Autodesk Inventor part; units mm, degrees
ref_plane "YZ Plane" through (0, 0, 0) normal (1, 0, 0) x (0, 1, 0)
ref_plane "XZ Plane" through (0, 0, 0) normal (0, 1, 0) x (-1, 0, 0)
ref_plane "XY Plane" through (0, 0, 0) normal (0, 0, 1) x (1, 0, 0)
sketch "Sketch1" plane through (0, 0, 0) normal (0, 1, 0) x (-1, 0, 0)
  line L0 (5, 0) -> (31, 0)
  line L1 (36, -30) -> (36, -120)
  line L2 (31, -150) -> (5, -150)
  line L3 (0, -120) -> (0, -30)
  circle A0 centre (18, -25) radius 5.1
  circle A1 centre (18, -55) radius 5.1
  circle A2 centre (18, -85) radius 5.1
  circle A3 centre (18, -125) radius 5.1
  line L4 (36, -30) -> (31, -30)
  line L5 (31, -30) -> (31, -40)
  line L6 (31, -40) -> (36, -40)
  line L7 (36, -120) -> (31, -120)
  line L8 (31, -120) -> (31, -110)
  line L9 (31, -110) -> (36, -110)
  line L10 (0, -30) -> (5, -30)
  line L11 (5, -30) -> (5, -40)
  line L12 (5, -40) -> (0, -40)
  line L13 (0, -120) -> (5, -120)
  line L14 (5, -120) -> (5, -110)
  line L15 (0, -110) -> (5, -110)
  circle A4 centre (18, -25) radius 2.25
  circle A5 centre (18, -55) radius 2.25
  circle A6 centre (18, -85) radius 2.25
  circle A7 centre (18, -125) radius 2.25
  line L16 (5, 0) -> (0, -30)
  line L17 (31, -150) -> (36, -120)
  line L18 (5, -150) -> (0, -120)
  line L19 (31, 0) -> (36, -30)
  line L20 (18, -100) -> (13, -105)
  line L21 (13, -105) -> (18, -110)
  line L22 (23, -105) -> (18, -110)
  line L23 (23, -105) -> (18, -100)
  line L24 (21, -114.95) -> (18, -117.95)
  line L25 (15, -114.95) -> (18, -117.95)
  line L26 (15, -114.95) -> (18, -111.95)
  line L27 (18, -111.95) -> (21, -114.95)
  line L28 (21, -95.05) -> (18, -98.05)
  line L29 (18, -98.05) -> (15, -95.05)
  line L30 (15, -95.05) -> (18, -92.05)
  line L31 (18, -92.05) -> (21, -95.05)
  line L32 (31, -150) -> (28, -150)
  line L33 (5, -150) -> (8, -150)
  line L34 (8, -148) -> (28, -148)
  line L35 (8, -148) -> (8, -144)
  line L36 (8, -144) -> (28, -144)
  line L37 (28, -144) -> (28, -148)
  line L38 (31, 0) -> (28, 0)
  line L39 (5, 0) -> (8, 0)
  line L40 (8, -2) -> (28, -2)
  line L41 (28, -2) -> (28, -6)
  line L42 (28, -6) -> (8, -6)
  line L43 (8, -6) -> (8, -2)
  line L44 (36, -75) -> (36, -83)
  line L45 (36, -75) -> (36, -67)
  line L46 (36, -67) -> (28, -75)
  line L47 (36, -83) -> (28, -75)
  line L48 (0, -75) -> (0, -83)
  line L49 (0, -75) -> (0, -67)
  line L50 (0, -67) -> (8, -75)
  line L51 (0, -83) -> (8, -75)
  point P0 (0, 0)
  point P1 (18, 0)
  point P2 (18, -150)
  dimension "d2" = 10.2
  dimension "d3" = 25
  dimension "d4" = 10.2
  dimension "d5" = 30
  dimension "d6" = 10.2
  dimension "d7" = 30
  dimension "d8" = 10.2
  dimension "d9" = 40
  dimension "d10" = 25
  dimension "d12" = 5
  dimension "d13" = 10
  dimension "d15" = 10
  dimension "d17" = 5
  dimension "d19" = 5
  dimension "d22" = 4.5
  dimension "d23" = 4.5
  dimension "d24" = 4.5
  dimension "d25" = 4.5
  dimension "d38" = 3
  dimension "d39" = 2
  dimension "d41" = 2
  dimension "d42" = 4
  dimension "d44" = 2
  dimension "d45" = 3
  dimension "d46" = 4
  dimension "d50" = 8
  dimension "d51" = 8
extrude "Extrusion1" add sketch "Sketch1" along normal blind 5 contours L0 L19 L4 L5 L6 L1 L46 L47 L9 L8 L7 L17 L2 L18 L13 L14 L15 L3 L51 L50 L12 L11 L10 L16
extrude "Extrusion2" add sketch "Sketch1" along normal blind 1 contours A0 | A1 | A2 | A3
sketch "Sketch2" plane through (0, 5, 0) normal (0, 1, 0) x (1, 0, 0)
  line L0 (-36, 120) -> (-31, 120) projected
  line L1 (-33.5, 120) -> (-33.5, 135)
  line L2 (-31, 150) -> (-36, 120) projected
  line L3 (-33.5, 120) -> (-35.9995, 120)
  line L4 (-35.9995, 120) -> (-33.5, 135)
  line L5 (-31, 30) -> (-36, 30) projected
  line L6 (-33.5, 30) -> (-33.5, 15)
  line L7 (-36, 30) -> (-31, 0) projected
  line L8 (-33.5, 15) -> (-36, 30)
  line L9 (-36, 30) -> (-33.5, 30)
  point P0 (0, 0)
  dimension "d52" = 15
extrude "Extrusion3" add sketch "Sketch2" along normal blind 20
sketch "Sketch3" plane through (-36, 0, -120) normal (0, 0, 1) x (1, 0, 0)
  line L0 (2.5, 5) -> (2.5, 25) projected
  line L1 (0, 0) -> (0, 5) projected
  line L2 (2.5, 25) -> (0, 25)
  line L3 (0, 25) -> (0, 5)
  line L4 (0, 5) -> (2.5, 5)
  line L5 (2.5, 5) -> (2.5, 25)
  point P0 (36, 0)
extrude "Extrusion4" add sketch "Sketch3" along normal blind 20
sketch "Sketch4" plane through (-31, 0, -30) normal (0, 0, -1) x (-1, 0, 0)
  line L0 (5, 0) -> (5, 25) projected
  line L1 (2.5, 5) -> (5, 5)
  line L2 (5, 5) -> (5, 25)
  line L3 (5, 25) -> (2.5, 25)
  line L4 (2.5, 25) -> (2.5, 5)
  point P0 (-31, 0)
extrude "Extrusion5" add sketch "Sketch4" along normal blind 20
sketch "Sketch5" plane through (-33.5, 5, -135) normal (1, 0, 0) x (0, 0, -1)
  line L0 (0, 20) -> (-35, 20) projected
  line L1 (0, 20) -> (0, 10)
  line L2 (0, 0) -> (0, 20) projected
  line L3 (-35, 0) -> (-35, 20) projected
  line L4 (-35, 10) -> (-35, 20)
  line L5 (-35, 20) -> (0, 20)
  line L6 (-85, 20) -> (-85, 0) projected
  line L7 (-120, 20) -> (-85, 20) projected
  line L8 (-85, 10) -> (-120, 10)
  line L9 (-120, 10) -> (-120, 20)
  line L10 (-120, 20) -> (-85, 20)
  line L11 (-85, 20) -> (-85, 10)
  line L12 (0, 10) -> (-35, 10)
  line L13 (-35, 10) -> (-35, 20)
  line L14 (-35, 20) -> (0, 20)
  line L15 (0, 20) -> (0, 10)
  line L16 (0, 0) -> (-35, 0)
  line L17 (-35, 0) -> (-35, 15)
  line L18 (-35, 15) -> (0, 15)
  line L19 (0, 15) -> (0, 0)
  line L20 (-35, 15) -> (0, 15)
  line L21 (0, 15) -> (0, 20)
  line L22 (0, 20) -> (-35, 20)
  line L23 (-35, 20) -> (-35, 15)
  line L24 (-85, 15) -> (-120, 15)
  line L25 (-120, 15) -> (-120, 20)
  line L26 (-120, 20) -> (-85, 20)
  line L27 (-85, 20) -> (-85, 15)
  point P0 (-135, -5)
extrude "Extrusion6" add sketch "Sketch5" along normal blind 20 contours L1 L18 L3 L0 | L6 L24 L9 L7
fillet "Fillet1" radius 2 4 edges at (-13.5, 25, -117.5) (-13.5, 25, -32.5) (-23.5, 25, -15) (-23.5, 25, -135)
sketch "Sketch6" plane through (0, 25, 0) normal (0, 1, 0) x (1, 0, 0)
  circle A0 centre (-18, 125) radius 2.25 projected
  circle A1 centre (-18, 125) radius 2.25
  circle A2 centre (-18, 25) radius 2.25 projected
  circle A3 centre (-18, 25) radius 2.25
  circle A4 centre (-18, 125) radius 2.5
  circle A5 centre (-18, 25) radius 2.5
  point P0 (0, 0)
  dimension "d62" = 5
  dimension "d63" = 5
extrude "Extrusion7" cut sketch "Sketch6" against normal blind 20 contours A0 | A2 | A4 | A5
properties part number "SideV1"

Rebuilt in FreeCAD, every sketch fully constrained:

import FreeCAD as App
import Part
import Sketcher
from FreeCAD import Vector
Q = App.Units.Quantity


def edges_at(feature, points):
    """Names of the edges that pass closest to the given points."""
    edges = feature.Shape.Edges
    near = lambda p: min(range(len(edges)), key=lambda i: edges[i].distToShape(Part.Vertex(*p))[0])
    return sorted({f"Edge{near(p) + 1}" for p in points})

doc = App.newDocument("Part")
params = doc.addObject("Spreadsheet::Sheet", "Params")
for row, (alias, value) in enumerate([
    ("sketch1_diameter", "10.2 mm"),
    ("sketch1_width", "5 mm"),
    ("sketch1_height", "10 mm"),
    ("sketch1_height2", "4 mm"),
    ("pad1_length", "5 mm"),
    ("sketch2_diameter", "10.2 mm"),
    ("sketch2_diameter2", "4.5 mm"),
    ("pad2_length", "1 mm"),
    ("sketch3_height", "15 mm"),
    ("sketch3_width", "2.5 mm"),
    ("pad3_length", "20 mm"),
    ("sketch4_height", "20 mm"),
    ("sketch4_width", "2.5 mm"),
    ("pad4_length", "20 mm"),
    ("sketch5_height", "20 mm"),
    ("sketch5_width", "2.5 mm"),
    ("pad5_length", "20 mm"),
    ("sketch6_width", "5 mm"),
    ("sketch6_height", "35 mm"),
    ("pad6_length", "20 mm"),
    ("fillet_radius", "2 mm"),
    ("sketch7_diameter", "5 mm"),
    ("pocket1_length", "20 mm"),
], start=1):
    params.set(f"A{row}", alias)
    params.set(f"B{row}", "=" + value)
    params.setAlias(f"B{row}", alias)

body = doc.addObject("PartDesign::Body", "Body")

# Sketch on XZ plane
sketch1 = body.newObject("Sketcher::SketchObject", "Sketch")
sketch1.AttachmentSupport = (doc.getObject("XZ_Plane"), [""])
sketch1.MapMode = "FlatFace"
sketch1.addGeometry([
    Part.LineSegment(Vector(-31, 0, 0), Vector(-5, 0, 0)),  # 0
    Part.LineSegment(Vector(-5, 0, 0), Vector(0, -30, 0)),  # 1
    Part.LineSegment(Vector(0, -30, 0), Vector(-5, -30, 0)),  # 2
    Part.LineSegment(Vector(-5, -30, 0), Vector(-5, -40, 0)),  # 3
    Part.LineSegment(Vector(-5, -40, 0), Vector(0, -40, 0)),  # 4
    Part.LineSegment(Vector(0, -40, 0), Vector(0, -67, 0)),  # 5
    Part.LineSegment(Vector(0, -67, 0), Vector(-8, -75, 0)),  # 6
    Part.LineSegment(Vector(-8, -75, 0), Vector(0, -83, 0)),  # 7
    Part.LineSegment(Vector(0, -83, 0), Vector(0, -110, 0)),  # 8
    Part.LineSegment(Vector(0, -110, 0), Vector(-5, -110, 0)),  # 9
    Part.LineSegment(Vector(-5, -110, 0), Vector(-5, -120, 0)),  # 10
    Part.LineSegment(Vector(-5, -120, 0), Vector(0, -120, 0)),  # 11
    Part.LineSegment(Vector(0, -120, 0), Vector(-5, -150, 0)),  # 12
    Part.LineSegment(Vector(-5, -150, 0), Vector(-31, -150, 0)),  # 13
    Part.LineSegment(Vector(-31, -150, 0), Vector(-36, -120, 0)),  # 14
    Part.LineSegment(Vector(-36, -120, 0), Vector(-31, -120, 0)),  # 15
    Part.LineSegment(Vector(-31, -120, 0), Vector(-31, -110, 0)),  # 16
    Part.LineSegment(Vector(-31, -110, 0), Vector(-36, -110, 0)),  # 17
    Part.LineSegment(Vector(-36, -110, 0), Vector(-36, -83, 0)),  # 18
    Part.LineSegment(Vector(-36, -83, 0), Vector(-28, -75, 0)),  # 19
    Part.LineSegment(Vector(-28, -75, 0), Vector(-36, -67, 0)),  # 20
    Part.LineSegment(Vector(-36, -67, 0), Vector(-36, -40, 0)),  # 21
    Part.LineSegment(Vector(-36, -40, 0), Vector(-31, -40, 0)),  # 22
    Part.LineSegment(Vector(-31, -40, 0), Vector(-31, -30, 0)),  # 23
    Part.LineSegment(Vector(-31, -30, 0), Vector(-36, -30, 0)),  # 24
    Part.LineSegment(Vector(-36, -30, 0), Vector(-31, 0, 0)),  # 25
    Part.LineSegment(Vector(-28, -148, 0), Vector(-8, -148, 0)),  # 26
    Part.LineSegment(Vector(-8, -148, 0), Vector(-8, -144, 0)),  # 27
    Part.LineSegment(Vector(-8, -144, 0), Vector(-28, -144, 0)),  # 28
    Part.LineSegment(Vector(-28, -144, 0), Vector(-28, -148, 0)),  # 29
    Part.Circle(Vector(-18, -125, 0), Vector(0, 0, 1), 5.1),  # 30
    Part.LineSegment(Vector(-18, -112, 0), Vector(-21, -115, 0)),  # 31
    Part.LineSegment(Vector(-21, -115, 0), Vector(-18, -118, 0)),  # 32
    Part.LineSegment(Vector(-18, -118, 0), Vector(-15, -115, 0)),  # 33
    Part.LineSegment(Vector(-15, -115, 0), Vector(-18, -112, 0)),  # 34
    Part.LineSegment(Vector(-13, -105, 0), Vector(-18, -100, 0)),  # 35
    Part.LineSegment(Vector(-18, -100, 0), Vector(-23, -105, 0)),  # 36
    Part.LineSegment(Vector(-23, -105, 0), Vector(-18, -110, 0)),  # 37
    Part.LineSegment(Vector(-18, -110, 0), Vector(-13, -105, 0)),  # 38
    Part.LineSegment(Vector(-18, -92, 0), Vector(-21, -95, 0)),  # 39
    Part.LineSegment(Vector(-21, -95, 0), Vector(-18, -98, 0)),  # 40
    Part.LineSegment(Vector(-18, -98, 0), Vector(-15, -95, 0)),  # 41
    Part.LineSegment(Vector(-15, -95, 0), Vector(-18, -92, 0)),  # 42
    Part.Circle(Vector(-18, -85, 0), Vector(0, 0, 1), 5.1),  # 43
    Part.Circle(Vector(-18, -55, 0), Vector(0, 0, 1), 5.1),  # 44
    Part.Circle(Vector(-18, -25, 0), Vector(0, 0, 1), 5.1),  # 45
    Part.LineSegment(Vector(-8, -6, 0), Vector(-8, -2, 0)),  # 46
    Part.LineSegment(Vector(-8, -2, 0), Vector(-28, -2, 0)),  # 47
    Part.LineSegment(Vector(-28, -2, 0), Vector(-28, -6, 0)),  # 48
    Part.LineSegment(Vector(-28, -6, 0), Vector(-8, -6, 0)),  # 49
], False)
sketch1.addConstraint([
    Sketcher.Constraint("Coincident", 0, 2, 1, 1),
    Sketcher.Constraint("Coincident", 1, 2, 2, 1),
    Sketcher.Constraint("Coincident", 2, 2, 3, 1),
    Sketcher.Constraint("Coincident", 3, 2, 4, 1),
    Sketcher.Constraint("Coincident", 4, 2, 5, 1),
    Sketcher.Constraint("Coincident", 5, 2, 6, 1),
    Sketcher.Constraint("Coincident", 6, 2, 7, 1),
    Sketcher.Constraint("Coincident", 7, 2, 8, 1),
    Sketcher.Constraint("Coincident", 8, 2, 9, 1),
    Sketcher.Constraint("Coincident", 9, 2, 10, 1),
    Sketcher.Constraint("Coincident", 10, 2, 11, 1),
    Sketcher.Constraint("Coincident", 11, 2, 12, 1),
    Sketcher.Constraint("Coincident", 12, 2, 13, 1),
    Sketcher.Constraint("Coincident", 13, 2, 14, 1),
    Sketcher.Constraint("Coincident", 14, 2, 15, 1),
    Sketcher.Constraint("Coincident", 15, 2, 16, 1),
    Sketcher.Constraint("Coincident", 16, 2, 17, 1),
    Sketcher.Constraint("Coincident", 17, 2, 18, 1),
    Sketcher.Constraint("Coincident", 18, 2, 19, 1),
    Sketcher.Constraint("Coincident", 19, 2, 20, 1),
    Sketcher.Constraint("Coincident", 20, 2, 21, 1),
    Sketcher.Constraint("Coincident", 21, 2, 22, 1),
    Sketcher.Constraint("Coincident", 22, 2, 23, 1),
    Sketcher.Constraint("Coincident", 23, 2, 24, 1),
    Sketcher.Constraint("Coincident", 24, 2, 25, 1),
    Sketcher.Constraint("Coincident", 25, 2, 0, 1),
    Sketcher.Constraint("Coincident", 26, 2, 27, 1),
    Sketcher.Constraint("Coincident", 27, 2, 28, 1),
    Sketcher.Constraint("Coincident", 28, 2, 29, 1),
    Sketcher.Constraint("Coincident", 29, 2, 26, 1),
    Sketcher.Constraint("Coincident", 31, 2, 32, 1),
    Sketcher.Constraint("Coincident", 32, 2, 33, 1),
    Sketcher.Constraint("Coincident", 33, 2, 34, 1),
    Sketcher.Constraint("Coincident", 34, 2, 31, 1),
    Sketcher.Constraint("Coincident", 35, 2, 36, 1),
    Sketcher.Constraint("Coincident", 36, 2, 37, 1),
    Sketcher.Constraint("Coincident", 37, 2, 38, 1),
    Sketcher.Constraint("Coincident", 38, 2, 35, 1),
    Sketcher.Constraint("Coincident", 39, 2, 40, 1),
    Sketcher.Constraint("Coincident", 40, 2, 41, 1),
    Sketcher.Constraint("Coincident", 41, 2, 42, 1),
    Sketcher.Constraint("Coincident", 42, 2, 39, 1),
    Sketcher.Constraint("Coincident", 46, 2, 47, 1),
    Sketcher.Constraint("Coincident", 47, 2, 48, 1),
    Sketcher.Constraint("Coincident", 48, 2, 49, 1),
    Sketcher.Constraint("Coincident", 49, 2, 46, 1),
    Sketcher.Constraint("Horizontal", 0),
    Sketcher.Constraint("Horizontal", 2),
    Sketcher.Constraint("Vertical", 3),
    Sketcher.Constraint("Horizontal", 4),
    Sketcher.Constraint("Vertical", 5),
    Sketcher.Constraint("Vertical", 8),
    Sketcher.Constraint("Horizontal", 9),
    Sketcher.Constraint("Vertical", 10),
    Sketcher.Constraint("Horizontal", 11),
    Sketcher.Constraint("Horizontal", 13),
    Sketcher.Constraint("Horizontal", 15),
    Sketcher.Constraint("Vertical", 16),
    Sketcher.Constraint("Horizontal", 17),
    Sketcher.Constraint("Vertical", 18),
    Sketcher.Constraint("Vertical", 21),
    Sketcher.Constraint("Horizontal", 22),
    Sketcher.Constraint("Vertical", 23),
    Sketcher.Constraint("Horizontal", 24),
    Sketcher.Constraint("Horizontal", 26),
    Sketcher.Constraint("Vertical", 27),
    Sketcher.Constraint("Horizontal", 28),
    Sketcher.Constraint("Vertical", 29),
    Sketcher.Constraint("Vertical", 46),
    Sketcher.Constraint("Horizontal", 47),
    Sketcher.Constraint("Vertical", 48),
    Sketcher.Constraint("Horizontal", 49),
    Sketcher.Constraint("Equal", 30, 43),
    Sketcher.Constraint("Equal", 43, 44),
    Sketcher.Constraint("Equal", 44, 45),
    Sketcher.Constraint("PointOnObject", 0, 2, -1),
    Sketcher.Constraint("PointOnObject", 1, 2, -2),
    Sketcher.Constraint("PointOnObject", 4, 2, -2),
    Sketcher.Constraint("PointOnObject", 7, 2, -2),
    Sketcher.Constraint("PointOnObject", 11, 2, -2),
    Sketcher.Constraint("Perpendicular", 6, 7),
    Sketcher.Constraint("Parallel", 1, 14),
    Sketcher.Constraint("Perpendicular", 7, 19),
    Sketcher.Constraint("Perpendicular", 19, 20),
    Sketcher.Constraint("Parallel", 12, 25),
    Sketcher.Constraint("Perpendicular", 20, 31),
    Sketcher.Constraint("Perpendicular", 31, 32),
    Sketcher.Constraint("Perpendicular", 32, 33),
    Sketcher.Constraint("Perpendicular", 33, 34),
    Sketcher.Constraint("Parallel", 34, 35),
    Sketcher.Constraint("Perpendicular", 35, 36),
    Sketcher.Constraint("Perpendicular", 36, 37),
    Sketcher.Constraint("Perpendicular", 37, 38),
    Sketcher.Constraint("Parallel", 38, 39),
    Sketcher.Constraint("Perpendicular", 39, 40),
    Sketcher.Constraint("Perpendicular", 40, 41),
    Sketcher.Constraint("Perpendicular", 41, 42),
    Sketcher.Constraint("Horizontal", 11, 2, 14, 2),
    Sketcher.Constraint("Horizontal", 9, 2, 16, 2),
    Sketcher.Constraint("Horizontal", 7, 2, 18, 2),
    Sketcher.Constraint("Horizontal", 6, 2, 19, 2),
    Sketcher.Constraint("Horizontal", 5, 2, 20, 2),
    Sketcher.Constraint("Horizontal", 4, 2, 21, 2),
    Sketcher.Constraint("Horizontal", 2, 2, 23, 2),
    Sketcher.Constraint("Horizontal", 31, 2, 33, 2),
    Sketcher.Constraint("Horizontal", 17, 2, 37, 2),
    Sketcher.Constraint("Horizontal", 36, 2, 38, 2),
    Sketcher.Constraint("Horizontal", 39, 2, 41, 2),
    Sketcher.Constraint("Vertical", 30, 3, 43, 3),
    Sketcher.Constraint("Vertical", 43, 3, 44, 3),
    Sketcher.Constraint("Vertical", 44, 3, 45, 3),
    Sketcher.Constraint("Vertical", 0, 2, 2, 2),
    Sketcher.Constraint("Vertical", 3, 2, 9, 2),
    Sketcher.Constraint("Vertical", 10, 2, 12, 2),
    Sketcher.Constraint("Vertical", 13, 2, 15, 2),
    Sketcher.Constraint("Vertical", 14, 2, 17, 2),
    Sketcher.Constraint("Vertical", 18, 2, 20, 2),
    Sketcher.Constraint("Vertical", 16, 2, 22, 2),
    Sketcher.Constraint("Vertical", 21, 2, 24, 2),
    Sketcher.Constraint("Vertical", 23, 2, 25, 2),
    Sketcher.Constraint("Vertical", 6, 2, 26, 2),
    Sketcher.Constraint("Vertical", 19, 2, 28, 2),
    Sketcher.Constraint("Vertical", 45, 3, 32, 2),
    Sketcher.Constraint("Vertical", 34, 2, 35, 2),
    Sketcher.Constraint("Vertical", 31, 2, 39, 2),
    Sketcher.Constraint("Vertical", 37, 2, 40, 2),
    Sketcher.Constraint("Vertical", 27, 2, 46, 2),
    Sketcher.Constraint("Vertical", 29, 2, 47, 2),
    Sketcher.Constraint("Equal", 5, 8),
    Sketcher.Constraint("Equal", 3, 10),
    Sketcher.Constraint("Equal", 29, 46),
    Sketcher.Constraint("Diameter", 30, Q("10.2 mm")),
    Sketcher.Constraint("DistanceX", 2, 2, 2, 1, Q("5 mm")),
    Sketcher.Constraint("DistanceY", 3, 2, 3, 1, Q("10 mm")),
    Sketcher.Constraint("DistanceY", 27, 1, 27, 2, Q("4 mm")),
    Sketcher.Constraint("DistanceY", 45, 3, -1, 1, Q("25 mm")),
    Sketcher.Constraint("DistanceY", 1, 2, -1, 1, Q("30 mm")),
    Sketcher.Constraint("DistanceX", 6, 2, -1, 1, Q("8 mm")),
    Sketcher.Constraint("DistanceY", 46, 2, -1, 1, Q("2 mm")),
    Sketcher.Constraint("DistanceY", 30, 3, 43, 3, Q("40 mm")),
    Sketcher.Constraint("DistanceY", 43, 3, 44, 3, Q("30 mm")),
    Sketcher.Constraint("DistanceY", 44, 3, 45, 3, Q("30 mm")),
    Sketcher.Constraint("DistanceX", 43, 3, 6, 2, Q("10 mm")),
    Sketcher.Constraint("DistanceY", 43, 3, 6, 2, Q("10 mm")),
    Sketcher.Constraint("DistanceX", 19, 2, 43, 3, Q("10 mm")),
    Sketcher.Constraint("DistanceY", 12, 2, 26, 2, Q("2 mm")),
    Sketcher.Constraint("DistanceX", 31, 2, 30, 3, Q("3 mm")),
    Sketcher.Constraint("DistanceY", 9, 2, 35, 2, Q("10 mm")),
    Sketcher.Constraint("DistanceY", 31, 2, -1, 1, Q("114.95 mm")),
    Sketcher.Constraint("DistanceY", 39, 2, -1, 1, Q("95.05 mm")),
])
sketch1.setExpression("Constraints[131]", "Params.sketch1_diameter")
sketch1.setExpression("Constraints[132]", "Params.sketch1_width")
sketch1.setExpression("Constraints[133]", "Params.sketch1_height")
sketch1.setExpression("Constraints[134]", "Params.sketch1_height2")
pad1 = body.newObject("PartDesign::Pad", "Pad")
pad1.Profile = sketch1
pad1.setExpression("Length", "Params.pad1_length")
pad1.Reversed = True

# Sketch on XZ plane
sketch2 = body.newObject("Sketcher::SketchObject", "Sketch001")
sketch2.AttachmentSupport = (doc.getObject("XZ_Plane"), [""])
sketch2.MapMode = "FlatFace"
sketch2.addGeometry([
    Part.Circle(Vector(-18, -25, 0), Vector(0, 0, 1), 5.1),  # 0
    Part.Circle(Vector(-18, -25, 0), Vector(0, 0, 1), 2.2),  # 1
    Part.Circle(Vector(-18, -55, 0), Vector(0, 0, 1), 5.1),  # 2
    Part.Circle(Vector(-18, -55, 0), Vector(0, 0, 1), 2.2),  # 3
    Part.Circle(Vector(-18, -85, 0), Vector(0, 0, 1), 5.1),  # 4
    Part.Circle(Vector(-18, -85, 0), Vector(0, 0, 1), 2.2),  # 5
    Part.Circle(Vector(-18, -125, 0), Vector(0, 0, 1), 5.1),  # 6
    Part.Circle(Vector(-18, -125, 0), Vector(0, 0, 1), 2.2),  # 7
], False)
sketch2.addConstraint([
    Sketcher.Constraint("Coincident", 1, 3, 0, 3),
    Sketcher.Constraint("Coincident", 3, 3, 2, 3),
    Sketcher.Constraint("Coincident", 5, 3, 4, 3),
    Sketcher.Constraint("Coincident", 7, 3, 6, 3),
    Sketcher.Constraint("Equal", 0, 2),
    Sketcher.Constraint("Equal", 1, 3),
    Sketcher.Constraint("Equal", 2, 4),
    Sketcher.Constraint("Equal", 3, 5),
    Sketcher.Constraint("Equal", 4, 6),
    Sketcher.Constraint("Equal", 5, 7),
    Sketcher.Constraint("Vertical", 1, 3, 2, 3),
    Sketcher.Constraint("Vertical", 3, 3, 4, 3),
    Sketcher.Constraint("Vertical", 5, 3, 6, 3),
    Sketcher.Constraint("Diameter", 0, Q("10.2 mm")),
    Sketcher.Constraint("Diameter", 1, Q("4.5 mm")),
    Sketcher.Constraint("DistanceY", 0, 3, -1, 1, Q("25 mm")),
    Sketcher.Constraint("DistanceY", 2, 3, 0, 3, Q("30 mm")),
    Sketcher.Constraint("DistanceY", 4, 3, 2, 3, Q("30 mm")),
    Sketcher.Constraint("DistanceY", 6, 3, 4, 3, Q("40 mm")),
    Sketcher.Constraint("DistanceX", 0, 3, -1, 1, Q("18 mm")),
])
sketch2.setExpression("Constraints[13]", "Params.sketch2_diameter")
sketch2.setExpression("Constraints[14]", "Params.sketch2_diameter2")
pad2 = body.newObject("PartDesign::Pad", "Pad001")
pad2.Profile = sketch2
pad2.setExpression("Length", "Params.pad2_length")
pad2.Reversed = True

# Sketch on XZ plane
sketch3 = body.newObject("Sketcher::SketchObject", "Sketch002")
sketch3.AttachmentSupport = (doc.getObject("XZ_Plane"), [""])
sketch3.MapMode = "FlatFace"
sketch3.AttachmentOffset = App.Placement(Vector(0, 0, -5), App.Rotation())
sketch3.addGeometry([
    Part.LineSegment(Vector(-33.5, -135, 0), Vector(-36, -120, 0)),  # 0
    Part.LineSegment(Vector(-36, -120, 0), Vector(-33.5, -120, 0)),  # 1
    Part.LineSegment(Vector(-33.5, -120, 0), Vector(-33.5, -135, 0)),  # 2
    Part.LineSegment(Vector(-33.5, -15, 0), Vector(-33.5, -30, 0)),  # 3
    Part.LineSegment(Vector(-33.5, -30, 0), Vector(-36, -30, 0)),  # 4
    Part.LineSegment(Vector(-36, -30, 0), Vector(-33.5, -15, 0)),  # 5
], False)
sketch3.addConstraint([
    Sketcher.Constraint("Coincident", 0, 2, 1, 1),
    Sketcher.Constraint("Coincident", 1, 2, 2, 1),
    Sketcher.Constraint("Coincident", 2, 2, 0, 1),
    Sketcher.Constraint("Coincident", 3, 2, 4, 1),
    Sketcher.Constraint("Coincident", 4, 2, 5, 1),
    Sketcher.Constraint("Coincident", 5, 2, 3, 1),
    Sketcher.Constraint("Horizontal", 1),
    Sketcher.Constraint("Vertical", 2),
    Sketcher.Constraint("Vertical", 3),
    Sketcher.Constraint("Horizontal", 4),
    Sketcher.Constraint("Vertical", 2, 2, 3, 2),
    Sketcher.Constraint("Vertical", 0, 2, 4, 2),
    Sketcher.Constraint("Equal", 2, 3),
    Sketcher.Constraint("DistanceY", 2, 2, 2, 1, Q("15 mm")),
    Sketcher.Constraint("DistanceY", 5, 2, -1, 1, Q("15 mm")),
    Sketcher.Constraint("DistanceX", 1, 1, 1, 2, Q("2.5 mm")),
    Sketcher.Constraint("DistanceX", 0, 2, -1, 1, Q("36 mm")),
    Sketcher.Constraint("DistanceY", 0, 2, -1, 1, Q("120 mm")),
])
sketch3.setExpression("Constraints[13]", "Params.sketch3_height")
sketch3.setExpression("Constraints[15]", "Params.sketch3_width")
pad3 = body.newObject("PartDesign::Pad", "Pad002")
pad3.Profile = sketch3
pad3.setExpression("Length", "Params.pad3_length")
pad3.Reversed = True

# Sketch on XY plane
sketch4 = body.newObject("Sketcher::SketchObject", "Sketch003")
sketch4.AttachmentSupport = (doc.getObject("XY_Plane"), [""])
sketch4.MapMode = "FlatFace"
sketch4.AttachmentOffset = App.Placement(Vector(0, 0, -120), App.Rotation())
sketch4.addGeometry([
    Part.LineSegment(Vector(-36, 5, 0), Vector(-33.5, 5, 0)),
    Part.LineSegment(Vector(-33.5, 5, 0), Vector(-33.5, 25, 0)),
    Part.LineSegment(Vector(-33.5, 25, 0), Vector(-36, 25, 0)),
    Part.LineSegment(Vector(-36, 25, 0), Vector(-36, 5, 0)),
], False)
sketch4.addConstraint([
    Sketcher.Constraint("Coincident", 0, 2, 1, 1),
    Sketcher.Constraint("Coincident", 1, 2, 2, 1),
    Sketcher.Constraint("Coincident", 2, 2, 3, 1),
    Sketcher.Constraint("Coincident", 3, 2, 0, 1),
    Sketcher.Constraint("Horizontal", 0),
    Sketcher.Constraint("Vertical", 1),
    Sketcher.Constraint("Horizontal", 2),
    Sketcher.Constraint("Vertical", 3),
    Sketcher.Constraint("DistanceY", 1, 1, 1, 2, Q("20 mm")),
    Sketcher.Constraint("DistanceX", 0, 1, 0, 2, Q("2.5 mm")),
    Sketcher.Constraint("DistanceY", -1, 1, 0, 2, Q("5 mm")),
    Sketcher.Constraint("DistanceX", 2, 2, -1, 1, Q("36 mm")),
])
sketch4.setExpression("Constraints[8]", "Params.sketch4_height")
sketch4.setExpression("Constraints[9]", "Params.sketch4_width")
pad4 = body.newObject("PartDesign::Pad", "Pad003")
pad4.Profile = sketch4
pad4.setExpression("Length", "Params.pad4_length")

# Sketch on XY plane
sketch5 = body.newObject("Sketcher::SketchObject", "Sketch004")
sketch5.AttachmentSupport = (doc.getObject("XY_Plane"), [""])
sketch5.MapMode = "FlatFace"
sketch5.AttachmentOffset = App.Placement(Vector(0, 0, -30), App.Rotation())
sketch5.addGeometry([
    Part.LineSegment(Vector(-33.5, 5, 0), Vector(-36, 5, 0)),
    Part.LineSegment(Vector(-36, 5, 0), Vector(-36, 25, 0)),
    Part.LineSegment(Vector(-36, 25, 0), Vector(-33.5, 25, 0)),
    Part.LineSegment(Vector(-33.5, 25, 0), Vector(-33.5, 5, 0)),
], False)
sketch5.addConstraint([
    Sketcher.Constraint("Coincident", 0, 2, 1, 1),
    Sketcher.Constraint("Coincident", 1, 2, 2, 1),
    Sketcher.Constraint("Coincident", 2, 2, 3, 1),
    Sketcher.Constraint("Coincident", 3, 2, 0, 1),
    Sketcher.Constraint("Horizontal", 0),
    Sketcher.Constraint("Vertical", 1),
    Sketcher.Constraint("Horizontal", 2),
    Sketcher.Constraint("Vertical", 3),
    Sketcher.Constraint("DistanceY", 1, 1, 1, 2, Q("20 mm")),
    Sketcher.Constraint("DistanceX", 0, 2, 0, 1, Q("2.5 mm")),
    Sketcher.Constraint("DistanceX", 0, 2, -1, 1, Q("36 mm")),
    Sketcher.Constraint("DistanceY", -1, 1, 0, 2, Q("5 mm")),
])
sketch5.setExpression("Constraints[8]", "Params.sketch5_height")
sketch5.setExpression("Constraints[9]", "Params.sketch5_width")
pad5 = body.newObject("PartDesign::Pad", "Pad004")
pad5.Profile = sketch5
pad5.setExpression("Length", "Params.pad5_length")
pad5.Reversed = True

# Sketch on YZ plane
sketch6 = body.newObject("Sketcher::SketchObject", "Sketch005")
sketch6.AttachmentSupport = (doc.getObject("YZ_Plane"), [""])
sketch6.MapMode = "FlatFace"
sketch6.AttachmentOffset = App.Placement(Vector(0, 0, -33.5), App.Rotation())
sketch6.addGeometry([
    Part.LineSegment(Vector(20, -135, 0), Vector(25, -135, 0)),  # 0
    Part.LineSegment(Vector(25, -135, 0), Vector(25, -100, 0)),  # 1
    Part.LineSegment(Vector(25, -100, 0), Vector(20, -100, 0)),  # 2
    Part.LineSegment(Vector(20, -100, 0), Vector(20, -135, 0)),  # 3
    Part.LineSegment(Vector(20, -50, 0), Vector(25, -50, 0)),  # 4
    Part.LineSegment(Vector(25, -50, 0), Vector(25, -15, 0)),  # 5
    Part.LineSegment(Vector(25, -15, 0), Vector(20, -15, 0)),  # 6
    Part.LineSegment(Vector(20, -15, 0), Vector(20, -50, 0)),  # 7
], False)
sketch6.addConstraint([
    Sketcher.Constraint("Coincident", 0, 2, 1, 1),
    Sketcher.Constraint("Coincident", 1, 2, 2, 1),
    Sketcher.Constraint("Coincident", 2, 2, 3, 1),
    Sketcher.Constraint("Coincident", 3, 2, 0, 1),
    Sketcher.Constraint("Coincident", 4, 2, 5, 1),
    Sketcher.Constraint("Coincident", 5, 2, 6, 1),
    Sketcher.Constraint("Coincident", 6, 2, 7, 1),
    Sketcher.Constraint("Coincident", 7, 2, 4, 1),
    Sketcher.Constraint("Horizontal", 0),
    Sketcher.Constraint("Vertical", 1),
    Sketcher.Constraint("Horizontal", 2),
    Sketcher.Constraint("Vertical", 3),
    Sketcher.Constraint("Horizontal", 4),
    Sketcher.Constraint("Vertical", 5),
    Sketcher.Constraint("Horizontal", 6),
    Sketcher.Constraint("Vertical", 7),
    Sketcher.Constraint("Vertical", 1, 2, 4, 2),
    Sketcher.Constraint("Vertical", 3, 2, 6, 2),
    Sketcher.Constraint("Equal", 3, 5),
    Sketcher.Constraint("DistanceX", 0, 1, 0, 2, Q("5 mm")),
    Sketcher.Constraint("DistanceY", 1, 1, 1, 2, Q("35 mm")),
    Sketcher.Constraint("DistanceX", -1, 1, 0, 2, Q("25 mm")),
    Sketcher.Constraint("DistanceY", 0, 2, -1, 1, Q("135 mm")),
    Sketcher.Constraint("DistanceY", 4, 2, -1, 1, Q("50 mm")),
])
sketch6.setExpression("Constraints[19]", "Params.sketch6_width")
sketch6.setExpression("Constraints[20]", "Params.sketch6_height")
pad6 = body.newObject("PartDesign::Pad", "Pad005")
pad6.Profile = sketch6
pad6.setExpression("Length", "Params.pad6_length")
doc.recompute()

fillet = body.newObject("PartDesign::Fillet", "Fillet")
fillet.Base = (pad6, edges_at(pad6, [
    (-13.5, 25, -117.5),
    (-13.5, 25, -32.5),
    (-23.5, 25, -15),
    (-23.5, 25, -135),
]))
fillet.setExpression("Radius", "Params.fillet_radius")

# Sketch on XZ plane
sketch7 = body.newObject("Sketcher::SketchObject", "Sketch006")
sketch7.AttachmentSupport = (doc.getObject("XZ_Plane"), [""])
sketch7.MapMode = "FlatFace"
sketch7.AttachmentOffset = App.Placement(Vector(0, 0, -25), App.Rotation())
sketch7.addGeometry([
    Part.Circle(Vector(-18, -125, 0), Vector(0, 0, 1), 2.5),
    Part.Circle(Vector(-18, -25, 0), Vector(0, 0, 1), 2.5),
], False)
sketch7.addConstraint([
    Sketcher.Constraint("Equal", 0, 1),
    Sketcher.Constraint("Vertical", 0, 3, 1, 3),
    Sketcher.Constraint("Diameter", 0, Q("5 mm")),
    Sketcher.Constraint("DistanceX", 0, 3, -1, 1, Q("18 mm")),
    Sketcher.Constraint("DistanceY", 0, 3, -1, 1, Q("125 mm")),
    Sketcher.Constraint("DistanceY", 1, 3, -1, 1, Q("25 mm")),
])
sketch7.setExpression("Constraints[2]", "Params.sketch7_diameter")
pocket1 = body.newObject("PartDesign::Pocket", "Pocket")
pocket1.Profile = sketch7
pocket1.setExpression("Length", "Params.pocket1_length")
pocket1.Reversed = True

doc.recompute()
